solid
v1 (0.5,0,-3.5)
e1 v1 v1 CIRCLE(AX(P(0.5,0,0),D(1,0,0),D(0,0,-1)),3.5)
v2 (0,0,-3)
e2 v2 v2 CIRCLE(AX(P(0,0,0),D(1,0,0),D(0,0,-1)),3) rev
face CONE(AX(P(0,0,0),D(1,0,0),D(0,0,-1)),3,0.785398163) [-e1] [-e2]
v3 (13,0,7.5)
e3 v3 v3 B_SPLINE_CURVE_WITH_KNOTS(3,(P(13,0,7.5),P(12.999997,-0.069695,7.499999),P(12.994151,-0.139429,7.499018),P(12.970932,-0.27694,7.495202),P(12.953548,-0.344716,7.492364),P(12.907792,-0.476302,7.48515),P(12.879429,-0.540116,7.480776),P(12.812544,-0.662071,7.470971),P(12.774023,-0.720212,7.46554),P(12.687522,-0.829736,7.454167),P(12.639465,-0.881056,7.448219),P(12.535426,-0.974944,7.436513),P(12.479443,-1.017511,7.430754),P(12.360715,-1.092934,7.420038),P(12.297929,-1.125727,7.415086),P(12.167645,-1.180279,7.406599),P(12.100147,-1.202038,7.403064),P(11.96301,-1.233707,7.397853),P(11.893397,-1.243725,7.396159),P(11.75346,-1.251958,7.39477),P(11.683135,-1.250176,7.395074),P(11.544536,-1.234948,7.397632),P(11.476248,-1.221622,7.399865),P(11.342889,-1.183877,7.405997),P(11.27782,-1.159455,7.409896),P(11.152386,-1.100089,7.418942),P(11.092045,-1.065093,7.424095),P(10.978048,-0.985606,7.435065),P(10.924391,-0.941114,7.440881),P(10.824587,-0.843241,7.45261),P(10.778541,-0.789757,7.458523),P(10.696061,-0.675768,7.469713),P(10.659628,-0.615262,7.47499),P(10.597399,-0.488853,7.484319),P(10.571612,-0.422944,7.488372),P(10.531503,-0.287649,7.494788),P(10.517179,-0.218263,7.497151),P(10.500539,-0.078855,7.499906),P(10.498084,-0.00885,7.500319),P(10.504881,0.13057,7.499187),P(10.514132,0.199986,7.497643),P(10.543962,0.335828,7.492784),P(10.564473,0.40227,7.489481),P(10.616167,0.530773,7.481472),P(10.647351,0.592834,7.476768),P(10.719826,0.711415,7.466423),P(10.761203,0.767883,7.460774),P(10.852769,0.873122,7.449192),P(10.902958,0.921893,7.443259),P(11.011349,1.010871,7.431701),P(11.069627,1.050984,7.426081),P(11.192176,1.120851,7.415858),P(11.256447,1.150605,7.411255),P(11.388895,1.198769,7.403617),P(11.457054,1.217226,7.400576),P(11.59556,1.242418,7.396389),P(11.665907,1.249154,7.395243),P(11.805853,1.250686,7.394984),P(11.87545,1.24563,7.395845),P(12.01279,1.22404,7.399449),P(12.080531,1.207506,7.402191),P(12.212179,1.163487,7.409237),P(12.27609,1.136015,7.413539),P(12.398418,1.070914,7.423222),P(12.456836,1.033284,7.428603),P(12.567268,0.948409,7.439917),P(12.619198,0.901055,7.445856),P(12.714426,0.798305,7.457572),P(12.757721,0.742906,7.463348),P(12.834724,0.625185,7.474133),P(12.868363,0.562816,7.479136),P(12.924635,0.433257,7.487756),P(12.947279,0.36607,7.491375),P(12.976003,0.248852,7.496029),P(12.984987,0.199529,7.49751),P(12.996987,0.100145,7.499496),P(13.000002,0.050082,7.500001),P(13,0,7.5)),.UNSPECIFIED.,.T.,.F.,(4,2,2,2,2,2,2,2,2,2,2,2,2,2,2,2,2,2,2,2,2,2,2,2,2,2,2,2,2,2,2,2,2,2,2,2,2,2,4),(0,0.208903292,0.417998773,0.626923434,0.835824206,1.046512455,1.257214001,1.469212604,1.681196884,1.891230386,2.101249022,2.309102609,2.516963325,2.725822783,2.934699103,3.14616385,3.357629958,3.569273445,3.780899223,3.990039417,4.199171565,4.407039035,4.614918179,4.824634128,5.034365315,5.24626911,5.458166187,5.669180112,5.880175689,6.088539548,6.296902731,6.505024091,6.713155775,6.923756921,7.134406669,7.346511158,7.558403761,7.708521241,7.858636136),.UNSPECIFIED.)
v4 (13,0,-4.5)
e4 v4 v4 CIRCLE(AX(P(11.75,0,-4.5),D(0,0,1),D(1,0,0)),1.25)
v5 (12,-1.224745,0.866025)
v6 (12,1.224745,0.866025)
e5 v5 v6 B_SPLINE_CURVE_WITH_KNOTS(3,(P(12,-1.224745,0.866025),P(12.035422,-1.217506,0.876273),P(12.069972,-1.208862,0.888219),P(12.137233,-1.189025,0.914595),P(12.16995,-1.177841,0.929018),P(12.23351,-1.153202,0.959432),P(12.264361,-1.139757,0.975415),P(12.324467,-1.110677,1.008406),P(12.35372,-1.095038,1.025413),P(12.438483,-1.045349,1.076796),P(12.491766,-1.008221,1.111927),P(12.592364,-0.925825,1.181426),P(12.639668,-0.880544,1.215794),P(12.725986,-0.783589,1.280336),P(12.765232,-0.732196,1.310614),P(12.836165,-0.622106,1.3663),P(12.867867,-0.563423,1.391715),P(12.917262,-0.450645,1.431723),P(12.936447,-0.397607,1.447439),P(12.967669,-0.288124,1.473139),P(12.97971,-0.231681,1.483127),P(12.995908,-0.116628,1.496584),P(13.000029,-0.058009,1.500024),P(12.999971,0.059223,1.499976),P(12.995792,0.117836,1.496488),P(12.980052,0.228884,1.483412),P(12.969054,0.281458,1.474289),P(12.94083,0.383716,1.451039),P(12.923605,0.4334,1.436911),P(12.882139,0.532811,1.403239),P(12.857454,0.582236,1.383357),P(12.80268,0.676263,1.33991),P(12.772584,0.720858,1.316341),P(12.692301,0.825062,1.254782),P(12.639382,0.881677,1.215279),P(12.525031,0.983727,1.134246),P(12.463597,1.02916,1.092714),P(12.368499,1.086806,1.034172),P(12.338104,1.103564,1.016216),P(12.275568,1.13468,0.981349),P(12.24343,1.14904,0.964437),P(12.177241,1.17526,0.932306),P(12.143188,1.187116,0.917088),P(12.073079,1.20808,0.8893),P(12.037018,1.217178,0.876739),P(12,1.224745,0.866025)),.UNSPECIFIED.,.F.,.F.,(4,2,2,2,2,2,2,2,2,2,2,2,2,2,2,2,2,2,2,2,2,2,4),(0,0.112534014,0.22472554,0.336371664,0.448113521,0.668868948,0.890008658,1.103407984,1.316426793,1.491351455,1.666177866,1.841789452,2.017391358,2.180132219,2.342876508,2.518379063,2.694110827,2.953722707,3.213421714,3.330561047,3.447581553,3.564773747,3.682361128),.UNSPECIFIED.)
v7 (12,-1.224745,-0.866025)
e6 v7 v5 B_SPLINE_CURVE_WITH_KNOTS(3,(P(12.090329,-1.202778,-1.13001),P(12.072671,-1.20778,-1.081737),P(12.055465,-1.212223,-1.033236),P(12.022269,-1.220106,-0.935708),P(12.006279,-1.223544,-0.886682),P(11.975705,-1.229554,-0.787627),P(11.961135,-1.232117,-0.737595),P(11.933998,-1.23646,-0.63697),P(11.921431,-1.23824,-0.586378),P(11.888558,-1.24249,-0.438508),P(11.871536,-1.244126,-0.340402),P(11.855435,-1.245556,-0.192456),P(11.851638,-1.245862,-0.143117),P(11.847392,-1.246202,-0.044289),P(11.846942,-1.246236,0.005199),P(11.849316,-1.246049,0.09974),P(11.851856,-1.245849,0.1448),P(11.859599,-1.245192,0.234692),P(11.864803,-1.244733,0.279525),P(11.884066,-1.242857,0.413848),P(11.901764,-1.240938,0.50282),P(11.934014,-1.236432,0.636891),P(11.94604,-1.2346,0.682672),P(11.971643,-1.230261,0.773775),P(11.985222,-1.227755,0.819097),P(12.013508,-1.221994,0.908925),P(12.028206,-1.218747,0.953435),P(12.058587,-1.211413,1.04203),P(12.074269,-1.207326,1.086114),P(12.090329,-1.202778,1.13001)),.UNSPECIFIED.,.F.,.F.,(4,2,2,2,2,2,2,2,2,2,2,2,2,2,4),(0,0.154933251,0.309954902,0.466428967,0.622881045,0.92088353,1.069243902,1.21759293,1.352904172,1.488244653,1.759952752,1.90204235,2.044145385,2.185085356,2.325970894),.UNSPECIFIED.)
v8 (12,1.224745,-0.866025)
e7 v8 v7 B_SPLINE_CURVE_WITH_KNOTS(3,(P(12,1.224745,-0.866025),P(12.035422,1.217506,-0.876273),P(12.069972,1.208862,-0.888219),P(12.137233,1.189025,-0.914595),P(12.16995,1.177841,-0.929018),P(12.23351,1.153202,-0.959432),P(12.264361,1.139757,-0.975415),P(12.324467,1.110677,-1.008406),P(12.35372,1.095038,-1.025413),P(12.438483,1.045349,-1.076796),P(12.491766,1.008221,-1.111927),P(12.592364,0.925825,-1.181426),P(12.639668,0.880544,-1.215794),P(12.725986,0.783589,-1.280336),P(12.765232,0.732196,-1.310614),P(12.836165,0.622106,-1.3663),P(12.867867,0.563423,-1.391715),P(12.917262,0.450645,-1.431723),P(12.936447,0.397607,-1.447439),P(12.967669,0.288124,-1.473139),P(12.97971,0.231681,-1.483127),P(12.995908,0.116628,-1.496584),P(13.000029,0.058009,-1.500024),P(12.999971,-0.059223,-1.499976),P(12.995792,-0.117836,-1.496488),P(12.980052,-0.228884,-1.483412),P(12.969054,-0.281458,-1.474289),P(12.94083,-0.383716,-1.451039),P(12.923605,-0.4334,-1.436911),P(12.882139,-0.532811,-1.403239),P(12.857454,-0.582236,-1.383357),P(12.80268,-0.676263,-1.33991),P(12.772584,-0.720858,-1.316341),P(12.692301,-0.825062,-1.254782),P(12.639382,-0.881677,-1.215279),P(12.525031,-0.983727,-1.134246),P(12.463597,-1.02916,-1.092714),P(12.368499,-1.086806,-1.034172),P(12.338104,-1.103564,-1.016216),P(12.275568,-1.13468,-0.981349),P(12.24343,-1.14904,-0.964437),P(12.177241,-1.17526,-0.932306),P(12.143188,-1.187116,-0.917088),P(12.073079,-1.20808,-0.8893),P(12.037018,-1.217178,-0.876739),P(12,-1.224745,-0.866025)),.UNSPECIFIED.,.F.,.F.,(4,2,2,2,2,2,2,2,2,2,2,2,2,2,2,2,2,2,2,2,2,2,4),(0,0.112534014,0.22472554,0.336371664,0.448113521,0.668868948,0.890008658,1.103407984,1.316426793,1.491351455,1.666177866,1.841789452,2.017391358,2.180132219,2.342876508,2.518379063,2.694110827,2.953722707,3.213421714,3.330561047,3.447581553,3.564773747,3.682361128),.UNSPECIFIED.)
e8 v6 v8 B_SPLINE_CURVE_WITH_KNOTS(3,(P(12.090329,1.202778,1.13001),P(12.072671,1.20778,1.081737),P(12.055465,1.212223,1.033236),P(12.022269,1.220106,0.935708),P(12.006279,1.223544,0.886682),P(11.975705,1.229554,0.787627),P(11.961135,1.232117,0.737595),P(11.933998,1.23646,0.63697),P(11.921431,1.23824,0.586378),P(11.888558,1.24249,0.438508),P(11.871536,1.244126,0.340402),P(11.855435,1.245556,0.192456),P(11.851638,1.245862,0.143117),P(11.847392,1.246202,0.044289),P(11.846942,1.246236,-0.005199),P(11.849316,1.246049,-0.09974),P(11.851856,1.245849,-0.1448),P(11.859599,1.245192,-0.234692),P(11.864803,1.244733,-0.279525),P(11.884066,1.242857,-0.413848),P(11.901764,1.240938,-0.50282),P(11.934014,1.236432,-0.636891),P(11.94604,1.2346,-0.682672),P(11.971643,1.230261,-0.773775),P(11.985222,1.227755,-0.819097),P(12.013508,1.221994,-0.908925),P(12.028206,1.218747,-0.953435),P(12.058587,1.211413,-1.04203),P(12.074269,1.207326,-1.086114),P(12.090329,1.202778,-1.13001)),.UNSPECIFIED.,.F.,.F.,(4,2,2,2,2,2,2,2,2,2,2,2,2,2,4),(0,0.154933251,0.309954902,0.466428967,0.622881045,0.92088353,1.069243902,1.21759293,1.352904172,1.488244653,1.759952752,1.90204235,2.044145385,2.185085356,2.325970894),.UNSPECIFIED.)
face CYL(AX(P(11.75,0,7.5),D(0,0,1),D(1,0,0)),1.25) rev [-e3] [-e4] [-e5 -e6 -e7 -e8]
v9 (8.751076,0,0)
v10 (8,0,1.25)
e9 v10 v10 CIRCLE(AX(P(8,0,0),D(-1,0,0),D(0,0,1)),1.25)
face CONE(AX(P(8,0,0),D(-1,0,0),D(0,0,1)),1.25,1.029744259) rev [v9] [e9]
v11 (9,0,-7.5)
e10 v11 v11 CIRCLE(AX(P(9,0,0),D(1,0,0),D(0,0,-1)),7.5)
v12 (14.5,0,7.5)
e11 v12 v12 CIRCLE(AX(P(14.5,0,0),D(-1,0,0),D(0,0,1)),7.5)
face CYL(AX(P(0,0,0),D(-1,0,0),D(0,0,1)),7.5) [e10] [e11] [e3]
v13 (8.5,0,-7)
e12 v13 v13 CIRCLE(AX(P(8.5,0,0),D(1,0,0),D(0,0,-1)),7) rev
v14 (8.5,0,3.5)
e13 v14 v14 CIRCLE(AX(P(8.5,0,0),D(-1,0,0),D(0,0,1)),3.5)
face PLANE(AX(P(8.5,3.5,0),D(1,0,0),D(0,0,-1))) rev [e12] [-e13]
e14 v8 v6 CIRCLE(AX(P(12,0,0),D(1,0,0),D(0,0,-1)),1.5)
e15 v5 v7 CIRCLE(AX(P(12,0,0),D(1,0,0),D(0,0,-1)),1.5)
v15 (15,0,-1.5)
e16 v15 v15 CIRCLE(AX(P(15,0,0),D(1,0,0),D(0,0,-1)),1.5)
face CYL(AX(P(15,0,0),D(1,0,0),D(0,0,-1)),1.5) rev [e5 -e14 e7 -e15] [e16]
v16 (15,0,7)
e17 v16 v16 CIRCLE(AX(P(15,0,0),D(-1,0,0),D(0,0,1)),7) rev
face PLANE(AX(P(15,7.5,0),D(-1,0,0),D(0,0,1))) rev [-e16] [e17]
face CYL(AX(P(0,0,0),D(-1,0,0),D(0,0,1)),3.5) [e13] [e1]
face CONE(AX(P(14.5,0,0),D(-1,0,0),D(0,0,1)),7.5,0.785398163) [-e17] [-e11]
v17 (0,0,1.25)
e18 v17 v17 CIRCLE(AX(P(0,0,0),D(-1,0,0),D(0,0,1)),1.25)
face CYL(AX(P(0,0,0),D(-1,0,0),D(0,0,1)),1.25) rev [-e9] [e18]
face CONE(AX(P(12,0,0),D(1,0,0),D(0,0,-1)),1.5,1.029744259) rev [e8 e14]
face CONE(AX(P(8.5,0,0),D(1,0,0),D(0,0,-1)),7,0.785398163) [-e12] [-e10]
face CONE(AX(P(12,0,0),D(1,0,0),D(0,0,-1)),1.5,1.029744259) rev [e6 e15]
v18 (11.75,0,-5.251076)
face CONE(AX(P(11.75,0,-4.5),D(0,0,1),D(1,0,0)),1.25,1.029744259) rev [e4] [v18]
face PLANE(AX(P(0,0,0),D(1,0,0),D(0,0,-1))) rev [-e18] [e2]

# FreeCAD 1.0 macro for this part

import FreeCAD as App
import Part
import Sketcher

V = App.Vector
Q = App.Units.Quantity


def edges_at(feature, points):
    """Names of the edges that pass closest to the given points."""
    edges = feature.Shape.Edges
    near = lambda p: min(range(len(edges)), key=lambda i: edges[i].distToShape(Part.Vertex(*p))[0])
    return sorted({f"Edge{near(p) + 1}" for p in points})


def add_polygon(sketch, points):
    """Adds a closed chain of lines whose ends are joined by coincident constraints."""
    first, n = sketch.GeometryCount, len(points)
    for a, b in zip(points, points[1:] + points[:1]):
        sketch.addGeometry(Part.LineSegment(App.Vector(*a, 0), App.Vector(*b, 0)), False)
    for i in range(n):
        sketch.addConstraint(Sketcher.Constraint("Coincident", first + i, 2, first + (i + 1) % n, 1))

doc = App.newDocument("Part")
params = doc.addObject("Spreadsheet::Sheet", "Params")
for row, (alias, value) in enumerate([
    ("sketch1_width", "15 mm"),
    ("sketch1_height", "4 mm"),
    ("sketch1_width2", "6.5 mm"),
    ("sketch1_height2", "3.5 mm"),
    ("revolution_angle", "360 deg"),
    ("sketch2_diameter", "2.5 mm"),
    ("hole_diameter", "2.5 mm"),
    ("hole_depth", "8 mm"),
    ("sketch3_diameter", "3 mm"),
    ("hole2_diameter", "3 mm"),
    ("hole2_depth", "3 mm"),
    ("sketch4_diameter", "2.5 mm"),
    ("hole3_diameter", "2.5 mm"),
    ("hole3_depth", "12 mm"),
    ("chamfer_size", "0.5 mm"),
], start=1):
    params.set(f"A{row}", alias)
    params.set(f"B{row}", "=" + value)
    params.setAlias(f"B{row}", alias)

body = doc.addObject("PartDesign::Body", "Body")

# Sketch on XY plane
sketch1 = body.newObject("Sketcher::SketchObject", "Sketch")
sketch1.AttachmentSupport = (doc.getObject("XY_Plane"), [""])
sketch1.MapMode = "FlatFace"
add_polygon(sketch1, [(0, 3.5), (0, 0), (15, 0), (15, 7.5), (8.5, 7.5), (8.5, 3.5)])  # lines 0-5
sketch1.addConstraint([
    Sketcher.Constraint("Vertical", 0),
    Sketcher.Constraint("Horizontal", 1),
    Sketcher.Constraint("Vertical", 2),
    Sketcher.Constraint("Horizontal", 3),
    Sketcher.Constraint("Vertical", 4),
    Sketcher.Constraint("Horizontal", 5),
    Sketcher.Constraint("Coincident", 0, 2, -1, 1),
    Sketcher.Constraint("DistanceX", 1, 1, 1, 2, Q("15 mm")),
    Sketcher.Constraint("DistanceY", 4, 2, 4, 1, Q("4 mm")),
    Sketcher.Constraint("DistanceX", 3, 2, 3, 1, Q("6.5 mm")),
    Sketcher.Constraint("DistanceY", 0, 2, 0, 1, Q("3.5 mm")),
])
sketch1.setExpression("Constraints[13]", "Params.sketch1_width")
sketch1.setExpression("Constraints[14]", "Params.sketch1_height")
sketch1.setExpression("Constraints[15]", "Params.sketch1_width2")
sketch1.setExpression("Constraints[16]", "Params.sketch1_height2")
revolution = body.newObject("PartDesign::Revolution", "Revolution")
revolution.Profile = sketch1
revolution.ReferenceAxis = (sketch1, ["H_Axis"])
revolution.setExpression("Angle", "Params.revolution_angle")

# Sketch on YZ plane
sketch2 = body.newObject("Sketcher::SketchObject", "Sketch001")
sketch2.AttachmentSupport = (doc.getObject("YZ_Plane"), [""])
sketch2.MapMode = "FlatFace"
sketch2.addGeometry(Part.Circle(V(0, 0, 0), V(0, 0, 1), 1.2), False)
sketch2.addConstraint([
    Sketcher.Constraint("Coincident", 0, 3, -1, 1),
    Sketcher.Constraint("Diameter", 0, Q("2.5 mm")),
])
sketch2.setExpression("Constraints[1]", "Params.sketch2_diameter")
doc.recompute()
hole = body.newObject("PartDesign::Hole", "Hole")
hole.Profile = sketch2
hole.ThreadType = "None"
hole.setExpression("Diameter", "Params.hole_diameter")
hole.DepthType = "Dimension"
hole.setExpression("Depth", "Params.hole_depth")
hole.DrillPoint = "Angled"
hole.DrillPointAngle = 118
hole.Reversed = True

# Sketch on YZ plane
sketch3 = body.newObject("Sketcher::SketchObject", "Sketch002")
sketch3.AttachmentSupport = (doc.getObject("YZ_Plane"), [""])
sketch3.MapMode = "FlatFace"
sketch3.AttachmentOffset = App.Placement(V(0, 0, 15), App.Rotation())
sketch3.addGeometry(Part.Circle(V(0, 0, 0), V(0, 0, 1), 1.5), False)
sketch3.addConstraint([
    Sketcher.Constraint("Coincident", 0, 3, -1, 1),
    Sketcher.Constraint("Diameter", 0, Q("3 mm")),
])
sketch3.setExpression("Constraints[1]", "Params.sketch3_diameter")
doc.recompute()
hole2 = body.newObject("PartDesign::Hole", "Hole001")
hole2.Profile = sketch3
hole2.ThreadType = "None"
hole2.setExpression("Diameter", "Params.hole2_diameter")
hole2.DepthType = "Dimension"
hole2.setExpression("Depth", "Params.hole2_depth")
hole2.DrillPoint = "Angled"
hole2.DrillPointAngle = 118

# Sketch on XY plane
sketch4 = body.newObject("Sketcher::SketchObject", "Sketch003")
sketch4.AttachmentSupport = (doc.getObject("XY_Plane"), [""])
sketch4.MapMode = "FlatFace"
sketch4.AttachmentOffset = App.Placement(V(0, 0, 7.5), App.Rotation())
sketch4.addGeometry(Part.Circle(V(11.8, 0, 0), V(0, 0, 1), 1.2), False)
sketch4.addConstraint([
    Sketcher.Constraint("PointOnObject", 0, 3, -1),
    Sketcher.Constraint("Diameter", 0, Q("2.5 mm")),
    Sketcher.Constraint("DistanceX", -1, 1, 0, 3, Q("11.75 mm")),
])
sketch4.setExpression("Constraints[1]", "Params.sketch4_diameter")
doc.recompute()
hole3 = body.newObject("PartDesign::Hole", "Hole002")
hole3.Profile = sketch4
hole3.ThreadType = "None"
hole3.setExpression("Diameter", "Params.hole3_diameter")
hole3.DepthType = "Dimension"
hole3.setExpression("Depth", "Params.hole3_depth")
hole3.DrillPoint = "Angled"
hole3.DrillPointAngle = 118
doc.recompute()

chamfer = body.newObject("PartDesign::Chamfer", "Chamfer")
chamfer.Base = (hole3, edges_at(hole3, [(15, -7.5, 0), (8.5, -7.5, 0), (0, -3.5, 0)]))
chamfer.setExpression("Size", "Params.chamfer_size")

doc.recompute()
